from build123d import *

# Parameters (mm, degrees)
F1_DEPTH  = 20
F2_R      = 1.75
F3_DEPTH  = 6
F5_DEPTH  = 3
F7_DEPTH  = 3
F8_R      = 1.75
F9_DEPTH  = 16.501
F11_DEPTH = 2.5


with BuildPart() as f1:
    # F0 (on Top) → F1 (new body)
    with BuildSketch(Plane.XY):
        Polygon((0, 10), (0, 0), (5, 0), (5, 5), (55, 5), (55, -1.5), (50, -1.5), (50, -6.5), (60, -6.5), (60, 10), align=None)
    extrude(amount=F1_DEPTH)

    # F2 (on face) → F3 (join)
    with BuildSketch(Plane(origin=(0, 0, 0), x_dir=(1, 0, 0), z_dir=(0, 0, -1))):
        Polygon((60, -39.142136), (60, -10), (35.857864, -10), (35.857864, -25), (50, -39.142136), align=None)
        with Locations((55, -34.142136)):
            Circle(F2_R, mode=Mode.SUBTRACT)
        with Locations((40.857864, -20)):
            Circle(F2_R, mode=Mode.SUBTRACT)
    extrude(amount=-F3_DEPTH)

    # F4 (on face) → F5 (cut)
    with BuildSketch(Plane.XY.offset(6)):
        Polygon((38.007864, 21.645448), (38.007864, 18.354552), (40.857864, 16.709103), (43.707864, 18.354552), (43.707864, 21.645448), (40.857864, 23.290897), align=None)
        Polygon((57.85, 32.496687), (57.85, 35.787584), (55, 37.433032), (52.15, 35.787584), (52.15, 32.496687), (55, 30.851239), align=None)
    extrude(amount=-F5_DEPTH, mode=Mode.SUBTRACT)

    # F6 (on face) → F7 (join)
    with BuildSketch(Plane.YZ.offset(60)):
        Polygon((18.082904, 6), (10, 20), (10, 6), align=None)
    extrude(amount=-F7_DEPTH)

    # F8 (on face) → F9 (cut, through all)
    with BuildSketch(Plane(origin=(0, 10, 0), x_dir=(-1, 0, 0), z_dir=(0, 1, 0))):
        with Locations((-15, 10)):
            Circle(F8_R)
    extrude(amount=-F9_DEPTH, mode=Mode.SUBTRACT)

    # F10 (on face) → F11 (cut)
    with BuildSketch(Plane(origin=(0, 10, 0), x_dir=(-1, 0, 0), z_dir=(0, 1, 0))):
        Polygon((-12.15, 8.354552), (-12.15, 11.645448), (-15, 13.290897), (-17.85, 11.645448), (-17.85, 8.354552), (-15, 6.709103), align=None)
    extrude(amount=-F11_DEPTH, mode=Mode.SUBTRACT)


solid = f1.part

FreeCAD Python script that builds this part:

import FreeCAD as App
import Part
import Sketcher
Q = App.Units.Quantity

doc = App.newDocument("Part")
body = doc.addObject("PartDesign::Body", "Body")

# Sketch on XY plane
sketch1 = body.newObject("Sketcher::SketchObject", "Sketch")
sketch1.AttachmentSupport = (doc.getObject("XY_Plane"), [""])
sketch1.MapMode = "FlatFace"
sketch1.addGeometry([
    Part.LineSegment(App.Vector(0, 10, 0), App.Vector(0, 0, 0)),  # 0
    Part.LineSegment(App.Vector(0, 0, 0), App.Vector(5, 0, 0)),  # 1
    Part.LineSegment(App.Vector(5, 0, 0), App.Vector(5, 5, 0)),  # 2
    Part.LineSegment(App.Vector(5, 5, 0), App.Vector(55, 5, 0)),  # 3
    Part.LineSegment(App.Vector(55, 5, 0), App.Vector(55, -2, 0)),  # 4
    Part.LineSegment(App.Vector(55, -2, 0), App.Vector(50, -2, 0)),  # 5
    Part.LineSegment(App.Vector(50, -2, 0), App.Vector(50, -6, 0)),  # 6
    Part.LineSegment(App.Vector(50, -6, 0), App.Vector(60, -6, 0)),  # 7
    Part.LineSegment(App.Vector(60, -6, 0), App.Vector(60, 10, 0)),  # 8
    Part.LineSegment(App.Vector(60, 10, 0), App.Vector(0, 10, 0)),  # 9
], False)
sketch1.addConstraint([
    Sketcher.Constraint("Coincident", 0, 2, 1, 1),
    Sketcher.Constraint("Coincident", 1, 2, 2, 1),
    Sketcher.Constraint("Coincident", 2, 2, 3, 1),
    Sketcher.Constraint("Coincident", 3, 2, 4, 1),
    Sketcher.Constraint("Coincident", 4, 2, 5, 1),
    Sketcher.Constraint("Coincident", 5, 2, 6, 1),
    Sketcher.Constraint("Coincident", 6, 2, 7, 1),
    Sketcher.Constraint("Coincident", 7, 2, 8, 1),
    Sketcher.Constraint("Coincident", 8, 2, 9, 1),
    Sketcher.Constraint("Coincident", 9, 2, 0, 1),
    Sketcher.Constraint("Vertical", 0),
    Sketcher.Constraint("Horizontal", 1),
    Sketcher.Constraint("Vertical", 2),
    Sketcher.Constraint("Horizontal", 3),
    Sketcher.Constraint("Vertical", 4),
    Sketcher.Constraint("Horizontal", 5),
    Sketcher.Constraint("Vertical", 6),
    Sketcher.Constraint("Horizontal", 7),
    Sketcher.Constraint("Vertical", 8),
    Sketcher.Constraint("Horizontal", 9),
    Sketcher.Constraint("Coincident", 0, 2, -1, 1),
    Sketcher.Constraint("Equal", 1, 5),
    Sketcher.Constraint("Equal", 7, 0),
    Sketcher.Constraint("Equal", 5, 2),
    Sketcher.Constraint("Equal", 2, 6),
    Sketcher.Constraint("DistanceX", 1, 1, 1, 2, Q("5 mm")),
    Sketcher.Constraint("DistanceX", 3, 1, 3, 2, Q("50 mm")),
    Sketcher.Constraint("DistanceX", 7, 1, 7, 2, Q("10 mm")),
    Sketcher.Constraint("DistanceY", 4, 2, 4, 1, Q("6.5 mm")),
])
pad1 = body.newObject("PartDesign::Pad", "Pad")
pad1.Profile = sketch1
pad1.Length = 20

# Sketch on XY plane
sketch2 = body.newObject("Sketcher::SketchObject", "Sketch001")
sketch2.AttachmentSupport = (doc.getObject("XY_Plane"), [""])
sketch2.MapMode = "FlatFace"
sketch2.addGeometry([
    Part.LineSegment(App.Vector(60, 39.1, 0), App.Vector(60, 10, 0)),  # 0
    Part.LineSegment(App.Vector(60, 10, 0), App.Vector(35.9, 10, 0)),  # 1
    Part.LineSegment(App.Vector(35.9, 10, 0), App.Vector(35.9, 25, 0)),  # 2
    Part.LineSegment(App.Vector(35.9, 25, 0), App.Vector(50, 39.1, 0)),  # 3
    Part.LineSegment(App.Vector(50, 39.1, 0), App.Vector(60, 39.1, 0)),  # 4
    Part.Circle(App.Vector(55, 34.1, 0), App.Vector(0, 0, 1), 1.8),  # 5
    Part.Circle(App.Vector(40.9, 20, 0), App.Vector(0, 0, 1), 1.8),  # 6
], False)
sketch2.addConstraint([
    Sketcher.Constraint("Coincident", 0, 2, 1, 1),
    Sketcher.Constraint("Coincident", 1, 2, 2, 1),
    Sketcher.Constraint("Coincident", 2, 2, 3, 1),
    Sketcher.Constraint("Coincident", 3, 2, 4, 1),
    Sketcher.Constraint("Coincident", 4, 2, 0, 1),
    Sketcher.Constraint("Vertical", 0),
    Sketcher.Constraint("Horizontal", 1),
    Sketcher.Constraint("Vertical", 2),
    Sketcher.Constraint("Horizontal", 4),
    Sketcher.Constraint("Equal", 5, 6),
    Sketcher.Constraint("Diameter", 5, Q("3.5 mm")),
    Sketcher.Constraint("DistanceX", 4, 1, 4, 2, Q("10 mm")),
    Sketcher.Constraint("DistanceY", 2, 1, 2, 2, Q("15 mm")),
    Sketcher.Constraint("Angle", 3, Q("45 deg")),
    Sketcher.Constraint("Distance", 3, Q("20.000001 mm")),
    Sketcher.Constraint("DistanceX", -1, 1, 5, 3, Q("55 mm")),
    Sketcher.Constraint("DistanceY", -1, 1, 6, 3, Q("20 mm")),
    Sketcher.Constraint("DistanceX", -1, 1, 0, 2, Q("60 mm")),
    Sketcher.Constraint("DistanceY", -1, 1, 0, 2, Q("10 mm")),
    Sketcher.Constraint("DistanceX", 1, 2, 6, 3, Q("5 mm")),
    Sketcher.Constraint("DistanceY", 5, 3, 3, 2, Q("5 mm")),
])
pad2 = body.newObject("PartDesign::Pad", "Pad001")
pad2.Profile = sketch2
pad2.Length = 6

# Sketch on XY plane
sketch3 = body.newObject("Sketcher::SketchObject", "Sketch002")
sketch3.AttachmentSupport = (doc.getObject("XY_Plane"), [""])
sketch3.MapMode = "FlatFace"
sketch3.AttachmentOffset = App.Placement(App.Vector(0, 0, 6), App.Rotation())
sketch3.addGeometry([
    Part.LineSegment(App.Vector(38, 21.6, 0), App.Vector(38, 18.4, 0)),  # 0
    Part.LineSegment(App.Vector(38, 18.4, 0), App.Vector(40.9, 16.7, 0)),  # 1
    Part.LineSegment(App.Vector(40.9, 16.7, 0), App.Vector(43.7, 18.4, 0)),  # 2
    Part.LineSegment(App.Vector(43.7, 18.4, 0), App.Vector(43.7, 21.6, 0)),  # 3
    Part.LineSegment(App.Vector(43.7, 21.6, 0), App.Vector(40.9, 23.3, 0)),  # 4
    Part.LineSegment(App.Vector(40.9, 23.3, 0), App.Vector(38, 21.6, 0)),  # 5
    Part.LineSegment(App.Vector(57.9, 32.5, 0), App.Vector(57.9, 35.8, 0)),  # 6
    Part.LineSegment(App.Vector(57.9, 35.8, 0), App.Vector(55, 37.4, 0)),  # 7
    Part.LineSegment(App.Vector(55, 37.4, 0), App.Vector(52.1, 35.8, 0)),  # 8
    Part.LineSegment(App.Vector(52.1, 35.8, 0), App.Vector(52.1, 32.5, 0)),  # 9
    Part.LineSegment(App.Vector(52.1, 32.5, 0), App.Vector(55, 30.9, 0)),  # 10
    Part.LineSegment(App.Vector(55, 30.9, 0), App.Vector(57.9, 32.5, 0)),  # 11
], False)
sketch3.addConstraint([
    Sketcher.Constraint("Coincident", 0, 2, 1, 1),
    Sketcher.Constraint("Coincident", 1, 2, 2, 1),
    Sketcher.Constraint("Coincident", 2, 2, 3, 1),
    Sketcher.Constraint("Coincident", 3, 2, 4, 1),
    Sketcher.Constraint("Coincident", 4, 2, 5, 1),
    Sketcher.Constraint("Coincident", 5, 2, 0, 1),
    Sketcher.Constraint("Coincident", 6, 2, 7, 1),
    Sketcher.Constraint("Coincident", 7, 2, 8, 1),
    Sketcher.Constraint("Coincident", 8, 2, 9, 1),
    Sketcher.Constraint("Coincident", 9, 2, 10, 1),
    Sketcher.Constraint("Coincident", 10, 2, 11, 1),
    Sketcher.Constraint("Coincident", 11, 2, 6, 1),
    Sketcher.Constraint("Vertical", 0),
    Sketcher.Constraint("Vertical", 3),
    Sketcher.Constraint("Vertical", 6),
    Sketcher.Constraint("Vertical", 9),
    Sketcher.Constraint("Parallel", 1, 4),
    Sketcher.Constraint("Parallel", 2, 5),
    Sketcher.Constraint("Parallel", 4, 7),
    Sketcher.Constraint("Parallel", 5, 8),
    Sketcher.Constraint("Parallel", 7, 10),
    Sketcher.Constraint("Parallel", 8, 11),
    Sketcher.Constraint("Horizontal", 0, 2, 2, 2),
    Sketcher.Constraint("Horizontal", 3, 2, 5, 2),
    Sketcher.Constraint("Horizontal", 6, 2, 8, 2),
    Sketcher.Constraint("Horizontal", 9, 2, 11, 2),
    Sketcher.Constraint("Vertical", 1, 2, 4, 2),
    Sketcher.Constraint("Equal", 3, 6),
    Sketcher.Constraint("Equal", 5, 7),
    Sketcher.Constraint("Angle", 1, Q("-30.000011 deg")),
    Sketcher.Constraint("DistanceX", -1, 1, 7, 2, Q("55 mm")),
    Sketcher.Constraint("DistanceX", 0, 2, 2, 2, Q("5.7 mm")),
    Sketcher.Constraint("DistanceY", 0, 2, 0, 1, Q("3.290896 mm")),
    Sketcher.Constraint("DistanceY", -1, 1, 7, 2, Q("37.433032 mm")),
    Sketcher.Constraint("DistanceY", 1, 2, 6, 2, Q("19.078481 mm")),
    Sketcher.Constraint("DistanceX", -1, 1, 0, 2, Q("38.007864 mm")),
])
pocket1 = body.newObject("PartDesign::Pocket", "Pocket")
pocket1.Profile = sketch3
pocket1.Length = 3

# Sketch on YZ plane
sketch4 = body.newObject("Sketcher::SketchObject", "Sketch003")
sketch4.AttachmentSupport = (doc.getObject("YZ_Plane"), [""])
sketch4.MapMode = "FlatFace"
sketch4.AttachmentOffset = App.Placement(App.Vector(0, 0, 60), App.Rotation())
sketch4.addGeometry([
    Part.LineSegment(App.Vector(18, 6, 0), App.Vector(10, 20, 0)),
    Part.LineSegment(App.Vector(10, 20, 0), App.Vector(10, 6, 0)),
    Part.LineSegment(App.Vector(10, 6, 0), App.Vector(18, 6, 0)),
], False)
sketch4.addConstraint([
    Sketcher.Constraint("Coincident", 0, 2, 1, 1),
    Sketcher.Constraint("Coincident", 1, 2, 2, 1),
    Sketcher.Constraint("Coincident", 2, 2, 0, 1),
    Sketcher.Constraint("Vertical", 1),
    Sketcher.Constraint("Horizontal", 2),
    Sketcher.Constraint("DistanceY", 1, 2, 1, 1, Q("14 mm")),
    Sketcher.Constraint("Angle", 0, Q("120.000001 deg")),
    Sketcher.Constraint("DistanceX", -1, 1, 0, 2, Q("10 mm")),
    Sketcher.Constraint("DistanceY", -1, 1, 0, 2, Q("20 mm")),
])
pad3 = body.newObject("PartDesign::Pad", "Pad002")
pad3.Profile = sketch4
pad3.Length = 3
pad3.Reversed = True

# Sketch on XZ plane
sketch5 = body.newObject("Sketcher::SketchObject", "Sketch004")
sketch5.AttachmentSupport = (doc.getObject("XZ_Plane"), [""])
sketch5.MapMode = "FlatFace"
sketch5.AttachmentOffset = App.Placement(App.Vector(0, 0, -10), App.Rotation())
sketch5.addGeometry(Part.Circle(App.Vector(15, 10, 0), App.Vector(0, 0, 1), 1.8), False)
sketch5.addConstraint([
    Sketcher.Constraint("Diameter", 0, Q("3.5 mm")),
    Sketcher.Constraint("DistanceX", -1, 1, 0, 3, Q("15 mm")),
    Sketcher.Constraint("DistanceY", -1, 1, 0, 3, Q("10 mm")),
])
pocket2 = body.newObject("PartDesign::Pocket", "Pocket001")
pocket2.Profile = sketch5
pocket2.Type = "ThroughAll"
pocket2.Reversed = True

# Sketch on XZ plane
sketch6 = body.newObject("Sketcher::SketchObject", "Sketch005")
sketch6.AttachmentSupport = (doc.getObject("XZ_Plane"), [""])
sketch6.MapMode = "FlatFace"
sketch6.AttachmentOffset = App.Placement(App.Vector(0, 0, -10), App.Rotation())
sketch6.addGeometry([
    Part.LineSegment(App.Vector(12.2, 8.4, 0), App.Vector(12.2, 11.6, 0)),  # 0
    Part.LineSegment(App.Vector(12.2, 11.6, 0), App.Vector(15, 13.3, 0)),  # 1
    Part.LineSegment(App.Vector(15, 13.3, 0), App.Vector(17.9, 11.6, 0)),  # 2
    Part.LineSegment(App.Vector(17.9, 11.6, 0), App.Vector(17.9, 8.4, 0)),  # 3
    Part.LineSegment(App.Vector(17.9, 8.4, 0), App.Vector(15, 6.7, 0)),  # 4
    Part.LineSegment(App.Vector(15, 6.7, 0), App.Vector(12.2, 8.4, 0)),  # 5
], False)
sketch6.addConstraint([
    Sketcher.Constraint("Coincident", 0, 2, 1, 1),
    Sketcher.Constraint("Coincident", 1, 2, 2, 1),
    Sketcher.Constraint("Coincident", 2, 2, 3, 1),
    Sketcher.Constraint("Coincident", 3, 2, 4, 1),
    Sketcher.Constraint("Coincident", 4, 2, 5, 1),
    Sketcher.Constraint("Coincident", 5, 2, 0, 1),
    Sketcher.Constraint("Vertical", 0),
    Sketcher.Constraint("Vertical", 3),
    Sketcher.Constraint("Parallel", 1, 4),
    Sketcher.Constraint("Parallel", 2, 5),
    Sketcher.Constraint("Horizontal", 0, 2, 2, 2),
    Sketcher.Constraint("Horizontal", 3, 2, 5, 2),
    Sketcher.Constraint("Vertical", 1, 2, 4, 2),
    Sketcher.Constraint("Angle", 1, Q("30.000011 deg")),
    Sketcher.Constraint("DistanceX", -1, 1, 1, 2, Q("15 mm")),
    Sketcher.Constraint("DistanceX", 0, 2, 2, 2, Q("5.7 mm")),
    Sketcher.Constraint("DistanceY", 0, 1, 0, 2, Q("3.290896 mm")),
    Sketcher.Constraint("DistanceY", -1, 1, 0, 2, Q("11.645448 mm")),
])
pocket3 = body.newObject("PartDesign::Pocket", "Pocket002")
pocket3.Profile = sketch6
pocket3.Length = 2.5
pocket3.Reversed = True

doc.recompute()
